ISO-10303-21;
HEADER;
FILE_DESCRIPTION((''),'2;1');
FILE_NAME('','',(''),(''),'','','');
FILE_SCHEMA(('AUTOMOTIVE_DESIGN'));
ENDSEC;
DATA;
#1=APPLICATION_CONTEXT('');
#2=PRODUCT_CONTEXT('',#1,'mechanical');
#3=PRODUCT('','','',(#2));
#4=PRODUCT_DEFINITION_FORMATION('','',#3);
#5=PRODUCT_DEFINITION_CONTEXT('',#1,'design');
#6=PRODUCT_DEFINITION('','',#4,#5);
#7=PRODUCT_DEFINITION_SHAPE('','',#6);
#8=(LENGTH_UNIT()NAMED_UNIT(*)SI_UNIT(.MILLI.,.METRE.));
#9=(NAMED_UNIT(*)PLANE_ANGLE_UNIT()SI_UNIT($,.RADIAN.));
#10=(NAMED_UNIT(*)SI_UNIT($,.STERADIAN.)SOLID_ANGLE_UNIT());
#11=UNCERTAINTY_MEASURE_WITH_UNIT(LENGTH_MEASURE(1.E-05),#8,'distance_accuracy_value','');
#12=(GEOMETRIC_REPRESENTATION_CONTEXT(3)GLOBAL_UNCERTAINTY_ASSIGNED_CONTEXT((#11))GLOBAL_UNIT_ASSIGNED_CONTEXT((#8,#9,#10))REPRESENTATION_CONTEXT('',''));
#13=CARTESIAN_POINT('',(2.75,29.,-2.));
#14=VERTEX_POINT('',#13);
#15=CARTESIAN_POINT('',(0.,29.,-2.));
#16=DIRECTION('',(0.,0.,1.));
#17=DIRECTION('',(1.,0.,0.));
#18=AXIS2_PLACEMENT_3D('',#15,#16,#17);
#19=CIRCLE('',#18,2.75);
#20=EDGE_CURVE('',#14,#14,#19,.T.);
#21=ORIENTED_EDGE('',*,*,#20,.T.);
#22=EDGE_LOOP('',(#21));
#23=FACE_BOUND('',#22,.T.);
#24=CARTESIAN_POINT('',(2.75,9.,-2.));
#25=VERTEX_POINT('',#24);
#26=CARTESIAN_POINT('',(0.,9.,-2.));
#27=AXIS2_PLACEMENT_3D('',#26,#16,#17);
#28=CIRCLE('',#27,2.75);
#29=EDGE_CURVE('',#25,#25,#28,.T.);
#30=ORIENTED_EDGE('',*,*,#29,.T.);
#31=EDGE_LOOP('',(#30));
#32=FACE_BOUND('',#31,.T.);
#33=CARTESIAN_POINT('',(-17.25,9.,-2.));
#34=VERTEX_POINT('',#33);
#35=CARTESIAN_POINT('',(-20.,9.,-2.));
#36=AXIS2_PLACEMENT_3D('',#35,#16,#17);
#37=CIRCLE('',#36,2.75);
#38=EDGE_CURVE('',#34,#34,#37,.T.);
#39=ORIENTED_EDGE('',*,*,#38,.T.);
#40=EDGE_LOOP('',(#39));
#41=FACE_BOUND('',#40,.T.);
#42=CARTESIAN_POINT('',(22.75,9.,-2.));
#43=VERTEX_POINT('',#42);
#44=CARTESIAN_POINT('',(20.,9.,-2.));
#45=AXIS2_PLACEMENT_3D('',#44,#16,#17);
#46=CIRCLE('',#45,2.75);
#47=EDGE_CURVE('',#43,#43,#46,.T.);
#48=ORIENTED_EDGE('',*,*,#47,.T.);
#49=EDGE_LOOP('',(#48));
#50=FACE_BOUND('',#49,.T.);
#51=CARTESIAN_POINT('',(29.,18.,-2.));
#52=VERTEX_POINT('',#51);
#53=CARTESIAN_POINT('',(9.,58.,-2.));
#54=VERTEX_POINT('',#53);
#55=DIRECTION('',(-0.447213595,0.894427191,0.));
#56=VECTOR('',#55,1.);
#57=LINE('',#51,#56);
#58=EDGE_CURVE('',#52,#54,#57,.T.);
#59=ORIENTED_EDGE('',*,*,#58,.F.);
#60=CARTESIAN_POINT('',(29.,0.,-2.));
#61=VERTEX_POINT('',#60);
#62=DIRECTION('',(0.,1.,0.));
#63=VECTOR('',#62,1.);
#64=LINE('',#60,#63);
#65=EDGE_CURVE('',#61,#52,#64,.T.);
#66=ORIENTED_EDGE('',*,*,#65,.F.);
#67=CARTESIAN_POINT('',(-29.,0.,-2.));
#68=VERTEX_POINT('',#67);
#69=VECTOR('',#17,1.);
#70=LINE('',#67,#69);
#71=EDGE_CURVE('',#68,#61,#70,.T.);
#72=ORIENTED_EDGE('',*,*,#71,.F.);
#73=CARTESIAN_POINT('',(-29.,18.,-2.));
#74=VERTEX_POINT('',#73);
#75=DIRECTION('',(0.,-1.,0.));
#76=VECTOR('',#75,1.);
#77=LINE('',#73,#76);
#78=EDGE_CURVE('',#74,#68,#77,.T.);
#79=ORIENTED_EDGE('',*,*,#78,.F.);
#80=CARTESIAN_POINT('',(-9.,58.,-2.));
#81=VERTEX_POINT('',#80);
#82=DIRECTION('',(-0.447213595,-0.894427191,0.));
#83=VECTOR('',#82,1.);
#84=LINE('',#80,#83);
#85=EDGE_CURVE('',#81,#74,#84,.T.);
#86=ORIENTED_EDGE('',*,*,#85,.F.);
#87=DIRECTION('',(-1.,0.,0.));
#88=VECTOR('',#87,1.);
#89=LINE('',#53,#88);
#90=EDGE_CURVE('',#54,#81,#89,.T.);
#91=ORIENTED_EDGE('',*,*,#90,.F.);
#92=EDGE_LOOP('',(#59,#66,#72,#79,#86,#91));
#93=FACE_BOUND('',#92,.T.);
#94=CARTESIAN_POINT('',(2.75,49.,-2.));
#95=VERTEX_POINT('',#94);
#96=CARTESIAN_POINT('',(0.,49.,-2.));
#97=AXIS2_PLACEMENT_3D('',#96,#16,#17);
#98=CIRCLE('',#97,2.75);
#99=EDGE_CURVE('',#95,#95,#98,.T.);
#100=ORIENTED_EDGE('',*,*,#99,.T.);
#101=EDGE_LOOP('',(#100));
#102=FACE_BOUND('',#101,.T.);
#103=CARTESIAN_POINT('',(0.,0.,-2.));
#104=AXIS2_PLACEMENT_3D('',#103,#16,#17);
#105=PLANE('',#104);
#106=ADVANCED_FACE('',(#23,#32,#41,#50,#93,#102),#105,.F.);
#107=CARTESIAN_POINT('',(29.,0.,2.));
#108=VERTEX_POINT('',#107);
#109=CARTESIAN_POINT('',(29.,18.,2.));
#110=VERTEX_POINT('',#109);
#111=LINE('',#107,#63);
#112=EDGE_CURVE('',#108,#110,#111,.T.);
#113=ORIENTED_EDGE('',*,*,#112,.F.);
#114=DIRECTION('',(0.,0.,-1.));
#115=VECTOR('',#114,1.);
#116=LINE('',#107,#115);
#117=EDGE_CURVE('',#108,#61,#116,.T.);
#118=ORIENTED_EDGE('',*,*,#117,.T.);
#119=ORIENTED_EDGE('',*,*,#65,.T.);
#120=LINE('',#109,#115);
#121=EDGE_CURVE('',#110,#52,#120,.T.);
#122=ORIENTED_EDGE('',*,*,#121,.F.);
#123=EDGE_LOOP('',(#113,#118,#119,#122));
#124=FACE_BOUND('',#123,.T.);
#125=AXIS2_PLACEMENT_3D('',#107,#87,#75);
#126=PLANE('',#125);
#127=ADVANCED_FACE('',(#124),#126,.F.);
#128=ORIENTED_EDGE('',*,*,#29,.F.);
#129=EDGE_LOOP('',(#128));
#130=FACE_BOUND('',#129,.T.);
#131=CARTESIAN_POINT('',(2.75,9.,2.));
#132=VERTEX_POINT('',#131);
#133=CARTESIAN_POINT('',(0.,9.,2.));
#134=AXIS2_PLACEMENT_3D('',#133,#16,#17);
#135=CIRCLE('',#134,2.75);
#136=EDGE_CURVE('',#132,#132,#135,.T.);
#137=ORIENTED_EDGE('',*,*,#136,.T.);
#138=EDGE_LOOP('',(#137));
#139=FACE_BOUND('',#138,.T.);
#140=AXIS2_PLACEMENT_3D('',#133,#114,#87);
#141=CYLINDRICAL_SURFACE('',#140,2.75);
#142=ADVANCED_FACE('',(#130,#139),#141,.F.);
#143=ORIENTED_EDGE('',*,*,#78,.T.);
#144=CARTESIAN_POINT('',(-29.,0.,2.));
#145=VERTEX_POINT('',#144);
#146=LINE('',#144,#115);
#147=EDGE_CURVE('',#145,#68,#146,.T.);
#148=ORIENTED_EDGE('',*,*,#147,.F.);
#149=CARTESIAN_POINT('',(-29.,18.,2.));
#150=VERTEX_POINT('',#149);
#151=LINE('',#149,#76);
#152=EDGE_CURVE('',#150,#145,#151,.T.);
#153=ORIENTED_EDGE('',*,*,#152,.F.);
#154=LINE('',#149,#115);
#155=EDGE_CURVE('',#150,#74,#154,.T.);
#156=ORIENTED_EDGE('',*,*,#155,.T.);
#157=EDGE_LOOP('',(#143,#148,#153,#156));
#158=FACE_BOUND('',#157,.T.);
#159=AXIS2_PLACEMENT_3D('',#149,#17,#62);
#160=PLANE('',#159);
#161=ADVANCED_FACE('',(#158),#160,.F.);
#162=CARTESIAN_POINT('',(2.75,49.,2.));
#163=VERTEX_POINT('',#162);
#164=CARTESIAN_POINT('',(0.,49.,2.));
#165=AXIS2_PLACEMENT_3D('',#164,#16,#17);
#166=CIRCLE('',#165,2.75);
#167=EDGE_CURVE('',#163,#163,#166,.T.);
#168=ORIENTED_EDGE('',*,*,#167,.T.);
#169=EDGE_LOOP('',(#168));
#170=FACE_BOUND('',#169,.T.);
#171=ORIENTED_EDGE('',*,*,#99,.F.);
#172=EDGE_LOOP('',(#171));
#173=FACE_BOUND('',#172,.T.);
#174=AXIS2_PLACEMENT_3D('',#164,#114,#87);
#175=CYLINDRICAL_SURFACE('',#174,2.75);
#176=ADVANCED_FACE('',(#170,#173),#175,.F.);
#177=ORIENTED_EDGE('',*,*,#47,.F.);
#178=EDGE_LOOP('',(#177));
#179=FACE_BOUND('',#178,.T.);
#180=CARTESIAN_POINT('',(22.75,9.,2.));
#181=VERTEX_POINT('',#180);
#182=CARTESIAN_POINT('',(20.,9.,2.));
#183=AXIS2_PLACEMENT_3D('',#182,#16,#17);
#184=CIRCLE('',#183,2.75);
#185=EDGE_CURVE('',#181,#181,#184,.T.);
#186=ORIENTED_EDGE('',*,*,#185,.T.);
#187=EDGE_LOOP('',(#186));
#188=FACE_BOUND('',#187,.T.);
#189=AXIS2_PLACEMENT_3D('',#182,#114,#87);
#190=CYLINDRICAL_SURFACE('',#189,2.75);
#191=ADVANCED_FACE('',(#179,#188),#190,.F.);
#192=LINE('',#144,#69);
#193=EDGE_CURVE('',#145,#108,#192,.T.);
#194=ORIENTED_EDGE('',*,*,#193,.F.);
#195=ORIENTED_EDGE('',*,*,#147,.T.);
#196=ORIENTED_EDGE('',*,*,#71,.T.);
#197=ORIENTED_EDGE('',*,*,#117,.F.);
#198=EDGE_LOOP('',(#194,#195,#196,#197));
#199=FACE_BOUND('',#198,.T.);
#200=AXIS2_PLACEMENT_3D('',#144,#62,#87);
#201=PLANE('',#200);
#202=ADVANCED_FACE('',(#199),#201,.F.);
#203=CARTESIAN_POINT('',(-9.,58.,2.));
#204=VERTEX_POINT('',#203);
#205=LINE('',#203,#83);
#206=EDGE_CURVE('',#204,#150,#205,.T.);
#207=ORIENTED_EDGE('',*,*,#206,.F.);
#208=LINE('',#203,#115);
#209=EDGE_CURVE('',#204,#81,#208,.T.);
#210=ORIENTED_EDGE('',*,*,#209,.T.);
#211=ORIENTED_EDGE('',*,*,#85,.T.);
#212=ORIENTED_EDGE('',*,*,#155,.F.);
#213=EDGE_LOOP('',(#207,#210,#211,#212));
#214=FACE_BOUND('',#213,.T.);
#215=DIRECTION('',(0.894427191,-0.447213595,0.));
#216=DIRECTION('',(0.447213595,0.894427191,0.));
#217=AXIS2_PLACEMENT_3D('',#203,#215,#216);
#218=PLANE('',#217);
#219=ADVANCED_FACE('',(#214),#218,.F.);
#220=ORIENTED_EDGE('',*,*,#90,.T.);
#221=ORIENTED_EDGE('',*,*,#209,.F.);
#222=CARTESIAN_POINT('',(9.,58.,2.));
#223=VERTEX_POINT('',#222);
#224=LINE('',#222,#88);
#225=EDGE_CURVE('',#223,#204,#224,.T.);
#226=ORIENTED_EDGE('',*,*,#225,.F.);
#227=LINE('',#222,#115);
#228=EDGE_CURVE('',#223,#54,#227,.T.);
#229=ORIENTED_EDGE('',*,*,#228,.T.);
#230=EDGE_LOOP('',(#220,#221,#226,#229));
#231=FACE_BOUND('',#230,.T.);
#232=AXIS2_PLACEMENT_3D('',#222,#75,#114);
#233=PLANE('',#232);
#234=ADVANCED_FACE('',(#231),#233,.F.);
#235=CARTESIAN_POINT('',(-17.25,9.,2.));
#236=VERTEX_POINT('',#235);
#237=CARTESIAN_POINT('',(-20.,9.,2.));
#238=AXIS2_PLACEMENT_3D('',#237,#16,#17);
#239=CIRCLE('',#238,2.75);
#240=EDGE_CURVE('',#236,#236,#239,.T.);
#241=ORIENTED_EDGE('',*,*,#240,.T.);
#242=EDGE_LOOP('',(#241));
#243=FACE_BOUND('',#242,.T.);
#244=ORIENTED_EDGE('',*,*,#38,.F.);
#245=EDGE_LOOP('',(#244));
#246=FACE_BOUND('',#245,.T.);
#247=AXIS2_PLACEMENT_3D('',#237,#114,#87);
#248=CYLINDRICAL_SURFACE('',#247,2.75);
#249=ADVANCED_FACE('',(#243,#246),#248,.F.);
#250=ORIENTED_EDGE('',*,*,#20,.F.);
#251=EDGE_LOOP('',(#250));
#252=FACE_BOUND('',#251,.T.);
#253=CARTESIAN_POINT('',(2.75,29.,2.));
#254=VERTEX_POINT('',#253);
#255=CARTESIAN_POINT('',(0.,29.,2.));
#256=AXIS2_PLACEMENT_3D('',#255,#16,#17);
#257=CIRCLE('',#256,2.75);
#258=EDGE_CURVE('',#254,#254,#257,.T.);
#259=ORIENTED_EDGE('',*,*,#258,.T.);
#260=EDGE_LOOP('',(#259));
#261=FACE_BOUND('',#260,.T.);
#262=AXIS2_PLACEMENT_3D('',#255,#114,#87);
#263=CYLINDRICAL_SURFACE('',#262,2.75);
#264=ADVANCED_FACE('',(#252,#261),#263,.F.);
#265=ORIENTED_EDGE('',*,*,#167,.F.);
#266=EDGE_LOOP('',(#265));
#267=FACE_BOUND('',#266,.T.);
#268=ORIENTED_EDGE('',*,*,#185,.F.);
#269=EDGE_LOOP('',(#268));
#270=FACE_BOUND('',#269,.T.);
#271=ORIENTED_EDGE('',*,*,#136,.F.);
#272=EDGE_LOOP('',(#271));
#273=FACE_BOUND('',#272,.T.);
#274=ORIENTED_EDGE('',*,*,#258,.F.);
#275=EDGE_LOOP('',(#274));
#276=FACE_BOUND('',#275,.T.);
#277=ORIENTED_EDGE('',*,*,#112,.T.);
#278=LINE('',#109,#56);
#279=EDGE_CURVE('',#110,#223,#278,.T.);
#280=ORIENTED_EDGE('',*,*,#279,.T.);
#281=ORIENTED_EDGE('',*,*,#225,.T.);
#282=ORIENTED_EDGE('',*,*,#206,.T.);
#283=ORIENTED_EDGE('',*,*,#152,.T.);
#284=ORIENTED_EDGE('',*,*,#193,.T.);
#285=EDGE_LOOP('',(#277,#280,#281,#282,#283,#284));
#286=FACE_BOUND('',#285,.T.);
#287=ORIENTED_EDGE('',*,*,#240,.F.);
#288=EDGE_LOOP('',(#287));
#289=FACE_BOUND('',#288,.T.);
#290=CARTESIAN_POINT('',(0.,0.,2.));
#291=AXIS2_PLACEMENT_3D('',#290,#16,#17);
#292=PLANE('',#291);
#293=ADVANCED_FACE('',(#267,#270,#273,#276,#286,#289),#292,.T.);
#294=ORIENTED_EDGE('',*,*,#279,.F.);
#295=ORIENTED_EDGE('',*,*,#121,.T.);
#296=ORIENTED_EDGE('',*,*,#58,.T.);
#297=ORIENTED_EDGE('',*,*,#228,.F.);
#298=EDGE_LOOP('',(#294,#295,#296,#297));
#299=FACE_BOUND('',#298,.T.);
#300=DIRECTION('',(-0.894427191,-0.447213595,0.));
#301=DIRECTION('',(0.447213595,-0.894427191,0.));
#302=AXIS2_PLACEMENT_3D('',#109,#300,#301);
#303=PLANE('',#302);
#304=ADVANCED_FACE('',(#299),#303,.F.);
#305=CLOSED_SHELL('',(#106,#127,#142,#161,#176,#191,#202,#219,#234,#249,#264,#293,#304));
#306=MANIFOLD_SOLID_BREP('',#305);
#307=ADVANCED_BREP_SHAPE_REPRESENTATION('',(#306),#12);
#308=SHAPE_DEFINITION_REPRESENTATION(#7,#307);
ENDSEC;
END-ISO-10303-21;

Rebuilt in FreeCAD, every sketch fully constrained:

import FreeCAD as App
import Part
import Sketcher

V = App.Vector
Q = App.Units.Quantity


def add_polygon(sketch, points):
    """Adds a closed chain of lines whose ends are joined by coincident constraints."""
    first, n = sketch.GeometryCount, len(points)
    for a, b in zip(points, points[1:] + points[:1]):
        sketch.addGeometry(Part.LineSegment(App.Vector(*a, 0), App.Vector(*b, 0)), False)
    for i in range(n):
        sketch.addConstraint(Sketcher.Constraint("Coincident", first + i, 2, first + (i + 1) % n, 1))

doc = App.newDocument("Part")
params = doc.addObject("Spreadsheet::Sheet", "Params")
for row, (alias, value) in enumerate([
    ("sketch1_diameter", "5.5 mm"),
    ("sketch1_width", "58 mm"),
    ("sketch1_width2", "18 mm"),
    ("pad1_length", "4 mm"),
], start=1):
    params.set(f"A{row}", alias)
    params.set(f"B{row}", "=" + value)
    params.setAlias(f"B{row}", alias)

body = doc.addObject("PartDesign::Body", "Body")

sketch1 = body.newObject("Sketcher::SketchObject", "Sketch")
sketch1.AttachmentSupport = (doc.getObject("XY_Plane"), [""])
sketch1.MapMode = "FlatFace"
add_polygon(sketch1, [(-29, 0), (29, 0), (29, 18), (9, 58), (-9, 58), (-29, 18)])
sketch1.addGeometry(Part.Circle(V(-20, 9, 0), V(0, 0, 1), 2.8), False)
sketch1.addGeometry(Part.Circle(V(0, 9, 0), V(0, 0, 1), 2.8), False)
sketch1.addGeometry(Part.Circle(V(20, 9, 0), V(0, 0, 1), 2.8), False)
sketch1.addGeometry(Part.Circle(V(0, 29, 0), V(0, 0, 1), 2.8), False)
sketch1.addGeometry(Part.Circle(V(0, 49, 0), V(0, 0, 1), 2.8), False)
sketch1.addConstraint(Sketcher.Constraint("Horizontal", 0))
sketch1.addConstraint(Sketcher.Constraint("Vertical", 1))
sketch1.addConstraint(Sketcher.Constraint("Horizontal", 3))
sketch1.addConstraint(Sketcher.Constraint("Vertical", 5))
sketch1.addConstraint(Sketcher.Constraint("Equal", 6, 7))
sketch1.addConstraint(Sketcher.Constraint("Equal", 7, 8))
sketch1.addConstraint(Sketcher.Constraint("Equal", 8, 9))
sketch1.addConstraint(Sketcher.Constraint("Equal", 9, 10))
sketch1.addConstraint(Sketcher.Constraint("Symmetric", 0, 2, 5, 2, -1, 1))
sketch1.addConstraint(Sketcher.Constraint("Symmetric", 6, 3, 8, 3, -2))
sketch1.addConstraint(Sketcher.Constraint("PointOnObject", 7, 3, -2))
sketch1.addConstraint(Sketcher.Constraint("PointOnObject", 9, 3, -2))
sketch1.addConstraint(Sketcher.Constraint("PointOnObject", 10, 3, -2))
sketch1.addConstraint(Sketcher.Constraint("Horizontal", 6, 3, 7, 3))
sketch1.addConstraint(Sketcher.Constraint("Horizontal", 1, 2, 4, 2))
sketch1.addConstraint(Sketcher.Constraint("Equal", 3, 1))
sketch1.addConstraint(Sketcher.Constraint("Equal", 2, 4))
sketch1.addConstraint(Sketcher.Constraint("Diameter", 6, Q("5.5 mm")))
sketch1.addConstraint(Sketcher.Constraint("DistanceX", 0, 1, 0, 2, Q("58 mm")))
sketch1.addConstraint(Sketcher.Constraint("DistanceX", 3, 2, 3, 1, Q("18 mm")))
sketch1.addConstraint(Sketcher.Constraint("DistanceX", 6, 3, -1, 1, Q("20 mm")))
sketch1.addConstraint(Sketcher.Constraint("DistanceY", -1, 1, 6, 3, Q("9 mm")))
sketch1.addConstraint(Sketcher.Constraint("DistanceY", -1, 1, 9, 3, Q("29 mm")))
sketch1.addConstraint(Sketcher.Constraint("DistanceY", -1, 1, 10, 3, Q("49 mm")))
sketch1.addConstraint(Sketcher.Constraint("DistanceY", -1, 1, 2, 2, Q("58 mm")))
sketch1.setExpression("Constraints[23]", "Params.sketch1_diameter")
sketch1.setExpression("Constraints[24]", "Params.sketch1_width")
sketch1.setExpression("Constraints[25]", "Params.sketch1_width2")
pad1 = body.newObject("PartDesign::Pad", "Pad")
pad1.Profile = sketch1
pad1.setExpression("Length", "Params.pad1_length")
pad1.Midplane = True

doc.recompute()
